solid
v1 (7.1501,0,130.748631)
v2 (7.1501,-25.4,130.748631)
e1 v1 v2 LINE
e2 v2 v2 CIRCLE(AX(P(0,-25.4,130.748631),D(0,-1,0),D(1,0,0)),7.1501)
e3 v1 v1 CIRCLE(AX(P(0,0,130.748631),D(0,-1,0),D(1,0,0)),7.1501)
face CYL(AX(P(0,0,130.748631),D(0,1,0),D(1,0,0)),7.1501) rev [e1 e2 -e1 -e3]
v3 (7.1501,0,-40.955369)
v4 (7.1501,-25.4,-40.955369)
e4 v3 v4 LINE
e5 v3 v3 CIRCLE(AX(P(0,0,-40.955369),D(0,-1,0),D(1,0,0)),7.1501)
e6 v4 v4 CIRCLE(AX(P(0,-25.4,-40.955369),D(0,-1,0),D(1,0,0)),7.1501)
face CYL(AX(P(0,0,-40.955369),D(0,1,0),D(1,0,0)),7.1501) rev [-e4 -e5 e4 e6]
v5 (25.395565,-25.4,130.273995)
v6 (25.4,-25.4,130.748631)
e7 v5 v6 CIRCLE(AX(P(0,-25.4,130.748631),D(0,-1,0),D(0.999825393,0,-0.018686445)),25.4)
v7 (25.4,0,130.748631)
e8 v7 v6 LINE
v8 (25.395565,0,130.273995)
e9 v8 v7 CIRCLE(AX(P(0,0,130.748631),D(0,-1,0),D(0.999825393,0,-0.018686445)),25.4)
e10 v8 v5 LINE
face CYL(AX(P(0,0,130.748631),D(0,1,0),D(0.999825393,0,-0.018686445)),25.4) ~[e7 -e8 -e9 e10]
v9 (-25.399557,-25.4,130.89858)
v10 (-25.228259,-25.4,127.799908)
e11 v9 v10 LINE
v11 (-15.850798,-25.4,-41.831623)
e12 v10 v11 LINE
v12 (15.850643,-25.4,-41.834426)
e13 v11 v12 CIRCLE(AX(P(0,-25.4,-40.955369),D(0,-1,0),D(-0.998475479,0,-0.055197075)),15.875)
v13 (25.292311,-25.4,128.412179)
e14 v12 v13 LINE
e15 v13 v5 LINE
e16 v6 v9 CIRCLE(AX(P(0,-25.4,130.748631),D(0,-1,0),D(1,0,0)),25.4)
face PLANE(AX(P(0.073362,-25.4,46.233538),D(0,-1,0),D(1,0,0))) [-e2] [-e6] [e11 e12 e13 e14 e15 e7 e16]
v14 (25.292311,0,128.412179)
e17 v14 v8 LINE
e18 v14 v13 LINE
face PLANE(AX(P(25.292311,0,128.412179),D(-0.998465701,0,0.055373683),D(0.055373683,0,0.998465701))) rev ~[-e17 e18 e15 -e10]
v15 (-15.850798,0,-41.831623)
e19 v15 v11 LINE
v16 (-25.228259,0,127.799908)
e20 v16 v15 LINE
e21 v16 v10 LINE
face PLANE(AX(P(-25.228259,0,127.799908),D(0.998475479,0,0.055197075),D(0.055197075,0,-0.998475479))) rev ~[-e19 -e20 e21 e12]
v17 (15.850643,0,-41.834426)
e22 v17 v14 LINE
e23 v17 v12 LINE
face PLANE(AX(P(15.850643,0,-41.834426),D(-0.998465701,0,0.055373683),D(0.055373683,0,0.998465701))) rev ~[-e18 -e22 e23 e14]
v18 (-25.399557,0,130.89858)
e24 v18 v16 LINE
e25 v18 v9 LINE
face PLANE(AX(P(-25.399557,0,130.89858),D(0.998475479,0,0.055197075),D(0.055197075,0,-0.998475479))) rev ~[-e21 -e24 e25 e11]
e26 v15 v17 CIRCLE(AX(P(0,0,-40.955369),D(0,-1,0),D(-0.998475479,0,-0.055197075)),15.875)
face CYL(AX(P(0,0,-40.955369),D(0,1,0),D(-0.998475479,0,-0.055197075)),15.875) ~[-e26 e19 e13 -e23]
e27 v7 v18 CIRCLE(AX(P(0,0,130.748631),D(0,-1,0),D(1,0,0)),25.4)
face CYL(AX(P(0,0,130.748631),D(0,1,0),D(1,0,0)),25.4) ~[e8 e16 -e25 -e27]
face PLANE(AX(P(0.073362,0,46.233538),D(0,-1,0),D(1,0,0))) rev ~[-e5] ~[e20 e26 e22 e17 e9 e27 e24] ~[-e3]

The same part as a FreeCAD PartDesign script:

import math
import FreeCAD as App
import Part
import Sketcher
Q = App.Units.Quantity

doc = App.newDocument("Part")
body = doc.addObject("PartDesign::Body", "Body")

# Sketch on XZ plane
sketch1 = body.newObject("Sketcher::SketchObject", "Sketch")
sketch1.AttachmentSupport = (doc.getObject("XZ_Plane"), [""])
sketch1.MapMode = "FlatFace"
sketch1.addGeometry([
    Part.LineSegment(App.Vector(-25.23, 127.8, 0), App.Vector(-15.85, -41.83, 0)),  # 0
    Part.ArcOfCircle(Part.Circle(App.Vector(0, -40.96, 0), App.Vector(0, 0, 1), 15.88), math.radians(-177), math.radians(-3)),  # 1
    Part.LineSegment(App.Vector(15.85, -41.83, 0), App.Vector(25.29, 128.41, 0)),  # 2
    Part.LineSegment(App.Vector(25.29, 128.41, 0), App.Vector(25.4, 130.27, 0)),  # 3
    Part.ArcOfCircle(Part.Circle(App.Vector(0, 130.75, 0), App.Vector(0, 0, 1), 25.4), math.radians(-1.07), math.radians(0)),  # 4
    Part.ArcOfCircle(Part.Circle(App.Vector(0, 130.75, 0), App.Vector(0, 0, 1), 25.4), math.radians(0), math.radians(180)),  # 5
    Part.LineSegment(App.Vector(-25.4, 130.9, 0), App.Vector(-25.23, 127.8, 0)),  # 6
    Part.Circle(App.Vector(0, -40.96, 0), App.Vector(0, 0, 1), 7.15),  # 7
    Part.Circle(App.Vector(0, 130.75, 0), App.Vector(0, 0, 1), 7.15),  # 8
], False)
sketch1.addConstraint([
    Sketcher.Constraint("Tangent", 0, 2, 1, 1),
    Sketcher.Constraint("Tangent", 1, 2, 2, 1),
    Sketcher.Constraint("Coincident", 2, 2, 3, 1),
    Sketcher.Constraint("Coincident", 3, 2, 4, 1),
    Sketcher.Constraint("Tangent", 4, 2, 5, 1),
    Sketcher.Constraint("Coincident", 5, 2, 6, 1),
    Sketcher.Constraint("Coincident", 6, 2, 0, 1),
    Sketcher.Constraint("Coincident", 7, 3, 1, 3),
    Sketcher.Constraint("Coincident", 8, 3, 4, 3),
    Sketcher.Constraint("Equal", 4, 5),
    Sketcher.Constraint("Equal", 7, 8),
    Sketcher.Constraint("PointOnObject", 1, 3, -2),
    Sketcher.Constraint("PointOnObject", 4, 3, -2),
    Sketcher.Constraint("Parallel", 2, 3),
    Sketcher.Constraint("Parallel", 0, 6),
    Sketcher.Constraint("Horizontal", 8, 3, 4, 2),
    Sketcher.Constraint("Radius", 4, Q("1 in")),
    Sketcher.Constraint("Diameter", 7, Q("0.563 in")),
    Sketcher.Constraint("Radius", 1, Q("0.625 in")),
    Sketcher.Constraint("DistanceY", 1, 3, 4, 3, Q("6.76 in")),
    Sketcher.Constraint("DistanceY", 2, 2, 3, 2, Q("0.0732998 in")),
    Sketcher.Constraint("DistanceY", 2, 2, 5, 2, Q("2.486401 mm")),
    Sketcher.Constraint("DistanceX", 5, 2, 6, 2, Q("0.171299 mm")),
    Sketcher.Constraint("DistanceY", 1, 3, -1, 1, Q("40.955369 mm")),
    Sketcher.Constraint("DistanceX", -1, 1, 2, 2, Q("25.292311 mm")),
])
pad1 = body.newObject("PartDesign::Pad", "Pad")
pad1.Profile = sketch1
pad1.Length = Q("1 in")

doc.recompute()
